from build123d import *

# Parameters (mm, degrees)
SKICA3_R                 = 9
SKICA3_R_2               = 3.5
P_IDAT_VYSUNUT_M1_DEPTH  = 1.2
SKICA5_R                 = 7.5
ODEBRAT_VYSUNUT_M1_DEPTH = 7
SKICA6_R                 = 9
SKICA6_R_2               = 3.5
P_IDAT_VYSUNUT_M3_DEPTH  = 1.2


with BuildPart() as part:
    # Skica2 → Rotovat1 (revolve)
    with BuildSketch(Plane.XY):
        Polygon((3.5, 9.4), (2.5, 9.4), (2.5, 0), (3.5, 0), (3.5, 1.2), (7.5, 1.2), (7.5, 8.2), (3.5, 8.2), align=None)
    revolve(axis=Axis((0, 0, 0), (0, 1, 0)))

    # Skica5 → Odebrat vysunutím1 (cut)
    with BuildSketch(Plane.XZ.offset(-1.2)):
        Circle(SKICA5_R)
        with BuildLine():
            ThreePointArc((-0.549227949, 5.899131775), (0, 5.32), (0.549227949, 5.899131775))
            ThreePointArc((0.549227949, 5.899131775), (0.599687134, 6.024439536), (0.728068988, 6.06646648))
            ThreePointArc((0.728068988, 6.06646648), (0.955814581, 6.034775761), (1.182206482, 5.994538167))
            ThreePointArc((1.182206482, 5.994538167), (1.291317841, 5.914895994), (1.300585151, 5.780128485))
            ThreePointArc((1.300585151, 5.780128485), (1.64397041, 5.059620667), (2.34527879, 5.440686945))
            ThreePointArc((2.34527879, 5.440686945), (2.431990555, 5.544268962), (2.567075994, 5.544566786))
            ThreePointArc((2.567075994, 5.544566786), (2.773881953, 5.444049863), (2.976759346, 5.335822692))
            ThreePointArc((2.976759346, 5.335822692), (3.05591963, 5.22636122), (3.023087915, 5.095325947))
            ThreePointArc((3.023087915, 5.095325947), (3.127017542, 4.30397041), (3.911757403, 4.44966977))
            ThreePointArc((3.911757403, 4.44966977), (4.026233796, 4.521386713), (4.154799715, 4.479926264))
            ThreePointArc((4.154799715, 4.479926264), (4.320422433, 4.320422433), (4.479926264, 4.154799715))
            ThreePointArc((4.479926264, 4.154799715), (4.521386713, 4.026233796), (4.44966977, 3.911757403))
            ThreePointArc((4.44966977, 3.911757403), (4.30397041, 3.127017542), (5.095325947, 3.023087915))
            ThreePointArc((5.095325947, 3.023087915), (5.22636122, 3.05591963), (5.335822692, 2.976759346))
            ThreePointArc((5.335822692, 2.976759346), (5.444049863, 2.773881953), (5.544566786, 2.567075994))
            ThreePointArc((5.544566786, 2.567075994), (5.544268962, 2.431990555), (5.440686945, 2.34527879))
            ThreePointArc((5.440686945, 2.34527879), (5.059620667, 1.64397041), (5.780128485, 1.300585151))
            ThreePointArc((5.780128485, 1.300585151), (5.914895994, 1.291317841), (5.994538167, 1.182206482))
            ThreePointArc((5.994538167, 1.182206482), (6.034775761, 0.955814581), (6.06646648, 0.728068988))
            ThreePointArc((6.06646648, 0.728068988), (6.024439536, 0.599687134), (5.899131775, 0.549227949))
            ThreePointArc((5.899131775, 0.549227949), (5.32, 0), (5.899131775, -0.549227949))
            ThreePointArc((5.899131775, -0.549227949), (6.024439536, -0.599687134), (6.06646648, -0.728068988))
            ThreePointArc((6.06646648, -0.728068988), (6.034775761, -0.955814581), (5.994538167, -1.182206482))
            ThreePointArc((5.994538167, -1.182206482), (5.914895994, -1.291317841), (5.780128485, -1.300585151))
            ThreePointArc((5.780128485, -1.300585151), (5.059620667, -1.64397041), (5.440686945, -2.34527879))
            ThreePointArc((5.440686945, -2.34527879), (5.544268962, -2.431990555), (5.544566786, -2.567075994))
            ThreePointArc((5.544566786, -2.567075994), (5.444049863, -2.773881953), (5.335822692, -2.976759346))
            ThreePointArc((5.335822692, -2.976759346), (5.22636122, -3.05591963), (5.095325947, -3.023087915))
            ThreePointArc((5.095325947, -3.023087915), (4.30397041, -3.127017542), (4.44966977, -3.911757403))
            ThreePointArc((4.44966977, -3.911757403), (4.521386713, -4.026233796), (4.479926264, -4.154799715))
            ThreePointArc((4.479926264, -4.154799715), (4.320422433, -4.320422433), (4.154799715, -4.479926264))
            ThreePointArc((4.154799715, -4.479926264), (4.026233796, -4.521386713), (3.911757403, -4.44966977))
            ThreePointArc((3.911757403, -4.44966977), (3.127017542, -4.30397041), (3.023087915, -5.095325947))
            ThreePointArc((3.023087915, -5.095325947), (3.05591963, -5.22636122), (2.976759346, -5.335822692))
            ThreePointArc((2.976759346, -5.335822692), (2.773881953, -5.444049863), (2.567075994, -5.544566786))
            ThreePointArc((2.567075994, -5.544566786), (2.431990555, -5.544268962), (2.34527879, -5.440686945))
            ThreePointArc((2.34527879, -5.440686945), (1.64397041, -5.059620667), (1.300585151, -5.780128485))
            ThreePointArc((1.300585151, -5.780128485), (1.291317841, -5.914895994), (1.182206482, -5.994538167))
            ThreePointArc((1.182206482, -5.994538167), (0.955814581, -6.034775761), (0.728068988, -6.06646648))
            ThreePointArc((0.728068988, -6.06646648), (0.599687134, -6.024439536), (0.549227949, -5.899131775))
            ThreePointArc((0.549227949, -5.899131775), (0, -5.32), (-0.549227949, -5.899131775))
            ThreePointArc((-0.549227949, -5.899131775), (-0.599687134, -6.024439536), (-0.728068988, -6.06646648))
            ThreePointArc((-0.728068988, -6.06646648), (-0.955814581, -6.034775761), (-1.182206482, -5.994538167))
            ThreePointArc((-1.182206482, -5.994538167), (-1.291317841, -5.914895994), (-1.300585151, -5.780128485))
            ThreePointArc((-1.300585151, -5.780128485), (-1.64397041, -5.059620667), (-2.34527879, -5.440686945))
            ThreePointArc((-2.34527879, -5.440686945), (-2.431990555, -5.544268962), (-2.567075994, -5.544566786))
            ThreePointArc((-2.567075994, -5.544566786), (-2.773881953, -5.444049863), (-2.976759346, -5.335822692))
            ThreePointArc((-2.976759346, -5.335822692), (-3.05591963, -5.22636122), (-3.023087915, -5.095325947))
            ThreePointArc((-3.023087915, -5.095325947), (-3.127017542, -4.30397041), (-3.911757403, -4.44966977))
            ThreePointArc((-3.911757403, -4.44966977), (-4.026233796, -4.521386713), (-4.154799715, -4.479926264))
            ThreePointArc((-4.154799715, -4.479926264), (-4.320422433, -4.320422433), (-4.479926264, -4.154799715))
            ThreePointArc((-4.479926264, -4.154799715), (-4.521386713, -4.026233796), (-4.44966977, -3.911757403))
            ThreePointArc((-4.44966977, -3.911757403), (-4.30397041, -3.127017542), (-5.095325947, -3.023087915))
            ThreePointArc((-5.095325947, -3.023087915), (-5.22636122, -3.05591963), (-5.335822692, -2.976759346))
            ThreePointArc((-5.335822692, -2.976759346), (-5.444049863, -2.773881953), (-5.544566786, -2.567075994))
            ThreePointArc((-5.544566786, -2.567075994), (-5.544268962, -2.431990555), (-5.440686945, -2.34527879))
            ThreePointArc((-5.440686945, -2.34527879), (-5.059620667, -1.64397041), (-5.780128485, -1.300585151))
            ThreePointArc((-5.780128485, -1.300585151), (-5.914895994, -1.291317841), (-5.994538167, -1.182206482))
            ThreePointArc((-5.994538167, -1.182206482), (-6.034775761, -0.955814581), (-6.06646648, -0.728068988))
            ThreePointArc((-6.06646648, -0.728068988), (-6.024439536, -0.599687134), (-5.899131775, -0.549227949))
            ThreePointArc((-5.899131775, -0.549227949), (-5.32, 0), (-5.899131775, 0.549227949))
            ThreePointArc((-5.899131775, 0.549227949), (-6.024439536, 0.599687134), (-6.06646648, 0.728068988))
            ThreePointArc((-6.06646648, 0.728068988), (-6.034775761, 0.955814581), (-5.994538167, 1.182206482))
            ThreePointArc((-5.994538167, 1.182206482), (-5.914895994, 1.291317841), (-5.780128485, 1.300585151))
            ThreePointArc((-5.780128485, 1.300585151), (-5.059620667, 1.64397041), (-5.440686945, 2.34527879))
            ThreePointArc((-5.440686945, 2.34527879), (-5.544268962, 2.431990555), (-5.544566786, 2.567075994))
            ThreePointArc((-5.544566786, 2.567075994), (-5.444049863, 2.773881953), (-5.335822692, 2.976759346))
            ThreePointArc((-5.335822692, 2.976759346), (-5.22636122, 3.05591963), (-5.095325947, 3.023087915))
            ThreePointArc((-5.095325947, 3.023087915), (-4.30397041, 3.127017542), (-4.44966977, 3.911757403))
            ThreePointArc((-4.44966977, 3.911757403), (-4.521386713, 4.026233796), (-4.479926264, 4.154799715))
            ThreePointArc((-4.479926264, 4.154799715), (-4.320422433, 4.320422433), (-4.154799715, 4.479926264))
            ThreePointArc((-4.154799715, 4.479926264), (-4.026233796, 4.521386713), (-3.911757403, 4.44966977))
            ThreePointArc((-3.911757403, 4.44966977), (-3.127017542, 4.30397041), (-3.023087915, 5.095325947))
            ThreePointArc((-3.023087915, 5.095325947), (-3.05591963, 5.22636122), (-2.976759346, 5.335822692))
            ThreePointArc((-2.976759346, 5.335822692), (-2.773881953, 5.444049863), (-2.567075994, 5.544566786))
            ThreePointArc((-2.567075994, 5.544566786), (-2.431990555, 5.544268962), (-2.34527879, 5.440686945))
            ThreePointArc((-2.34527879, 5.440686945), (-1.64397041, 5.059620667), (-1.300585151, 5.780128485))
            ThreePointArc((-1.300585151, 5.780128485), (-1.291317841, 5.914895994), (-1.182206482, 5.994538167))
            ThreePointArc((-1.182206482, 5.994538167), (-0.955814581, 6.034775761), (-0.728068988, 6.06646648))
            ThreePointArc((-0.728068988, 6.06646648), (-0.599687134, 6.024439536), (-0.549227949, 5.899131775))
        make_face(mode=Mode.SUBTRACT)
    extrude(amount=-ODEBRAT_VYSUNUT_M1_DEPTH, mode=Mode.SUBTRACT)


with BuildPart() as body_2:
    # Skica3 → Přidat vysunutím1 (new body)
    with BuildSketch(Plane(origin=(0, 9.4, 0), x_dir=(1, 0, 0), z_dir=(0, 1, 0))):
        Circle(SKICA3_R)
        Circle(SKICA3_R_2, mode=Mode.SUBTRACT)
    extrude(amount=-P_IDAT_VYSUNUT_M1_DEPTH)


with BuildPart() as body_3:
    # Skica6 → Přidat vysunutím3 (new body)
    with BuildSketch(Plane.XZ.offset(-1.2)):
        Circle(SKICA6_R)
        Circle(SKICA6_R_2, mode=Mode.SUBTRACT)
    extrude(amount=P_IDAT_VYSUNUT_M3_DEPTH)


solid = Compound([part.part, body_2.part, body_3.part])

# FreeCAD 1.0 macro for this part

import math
import FreeCAD as App
import Part
import Sketcher
from FreeCAD import Vector
Q = App.Units.Quantity

doc = App.newDocument("Part")
params = doc.addObject("Spreadsheet::Sheet", "Params")
for row, (alias, value) in enumerate([
    ("sketch1_width", "1 mm"),
    ("sketch1_width2", "4 mm"),
    ("sketch1_height", "7 mm"),
    ("sketch1_height2", "9.4 mm"),
    ("revolution_angle", "360 deg"),
    ("sketch2_diameter", "15 mm"),
    ("sketch2_radius", "0.16 mm"),
    ("sketch2_radius2", "0.55 mm"),
    ("sketch2_radius3", "6.11 mm"),
    ("pocket1_length", "7 mm"),
    ("sketch3_diameter", "18 mm"),
    ("sketch3_diameter2", "7 mm"),
    ("pad1_length", "1.2 mm"),
    ("sketch4_diameter", "18 mm"),
    ("sketch4_diameter2", "7 mm"),
    ("pad2_length", "1.2 mm"),
], start=1):
    params.set(f"A{row}", alias)
    params.set(f"B{row}", "=" + value)
    params.setAlias(f"B{row}", alias)

body = doc.addObject("PartDesign::Body", "Body")

sketch1 = doc.addObject("Sketcher::SketchObject", "Sketch")
body.addObject(sketch1)
sketch1.AttachmentSupport = (doc.XY_Plane, [""])
sketch1.MapMode = "FlatFace"
sketch1.addGeometry([
    Part.LineSegment(Vector(3.5, 9.4, 0), Vector(2.5, 9.4, 0)),
    Part.LineSegment(Vector(2.5, 9.4, 0), Vector(2.5, 0, 0)),
    Part.LineSegment(Vector(2.5, 0, 0), Vector(3.5, 0, 0)),
    Part.LineSegment(Vector(3.5, 0, 0), Vector(3.5, 1.2, 0)),
    Part.LineSegment(Vector(3.5, 1.2, 0), Vector(7.5, 1.2, 0)),
    Part.LineSegment(Vector(7.5, 1.2, 0), Vector(7.5, 8.2, 0)),
    Part.LineSegment(Vector(7.5, 8.2, 0), Vector(3.5, 8.2, 0)),
    Part.LineSegment(Vector(3.5, 8.2, 0), Vector(3.5, 9.4, 0)),
], False)
sketch1.addConstraint([
    Sketcher.Constraint("Coincident", 0, 2, 1, 1),
    Sketcher.Constraint("Coincident", 1, 2, 2, 1),
    Sketcher.Constraint("Coincident", 2, 2, 3, 1),
    Sketcher.Constraint("Coincident", 3, 2, 4, 1),
    Sketcher.Constraint("Coincident", 4, 2, 5, 1),
    Sketcher.Constraint("Coincident", 5, 2, 6, 1),
    Sketcher.Constraint("Coincident", 6, 2, 7, 1),
    Sketcher.Constraint("Coincident", 7, 2, 0, 1),
    Sketcher.Constraint("Horizontal", 0),
    Sketcher.Constraint("Vertical", 1),
    Sketcher.Constraint("Horizontal", 2),
    Sketcher.Constraint("Vertical", 3),
    Sketcher.Constraint("Horizontal", 4),
    Sketcher.Constraint("Vertical", 5),
    Sketcher.Constraint("Horizontal", 6),
    Sketcher.Constraint("Vertical", 7),
    Sketcher.Constraint("PointOnObject", 1, 2, -1),
    Sketcher.Constraint("Vertical", 3, 2, 6, 2),
    Sketcher.Constraint("Equal", 3, 7),
    Sketcher.Constraint("DistanceX", 0, 2, 0, 1, Q("1 mm")),
    Sketcher.Constraint("DistanceX", 4, 1, 4, 2, Q("4 mm")),
    Sketcher.Constraint("DistanceY", 5, 1, 5, 2, Q("7 mm")),
    Sketcher.Constraint("DistanceY", 1, 2, 1, 1, Q("9.4 mm")),
    Sketcher.Constraint("DistanceX", -1, 1, 0, 2, Q("2.5 mm")),
])
sketch1.setExpression("Constraints[19]", "Params.sketch1_width")
sketch1.setExpression("Constraints[20]", "Params.sketch1_width2")
sketch1.setExpression("Constraints[21]", "Params.sketch1_height")
sketch1.setExpression("Constraints[22]", "Params.sketch1_height2")
revolution = doc.addObject("PartDesign::Revolution", "Revolution")
body.addObject(revolution)
revolution.Profile = sketch1
revolution.ReferenceAxis = (sketch1, ["V_Axis"])
revolution.setExpression("Angle", "Params.revolution_angle")

sketch2 = doc.addObject("Sketcher::SketchObject", "Sketch001")
body.addObject(sketch2)
sketch2.AttachmentSupport = (doc.XZ_Plane, [""])
sketch2.MapMode = "FlatFace"
sketch2.AttachmentOffset = App.Placement(Vector(0, 0, -1.2), App.Rotation())
sketch2.addGeometry([
    Part.Circle(Vector(0, 0, 0), Vector(0, 0, 1), 7.5),
    Part.ArcOfCircle(Part.Circle(Vector(-0.71, 5.91, 0), Vector(0, 0, 1), 0.16), math.radians(-3), math.radians(97)),
    Part.ArcOfCircle(Part.Circle(Vector(0, 5.87, 0), Vector(0, 0, 1), 0.55), math.radians(177), math.radians(363)),
    Part.ArcOfCircle(Part.Circle(Vector(0.71, 5.91, 0), Vector(0, 0, 1), 0.16), math.radians(83), math.radians(183)),
    Part.ArcOfCircle(Part.Circle(Vector(0, 0, 0), Vector(0, 0, 1), 6.11), math.radians(78.84), math.radians(83.16)),
    Part.ArcOfCircle(Part.Circle(Vector(1.15, 5.84, 0), Vector(0, 0, 1), 0.16), math.radians(-21), math.radians(79)),
    Part.ArcOfCircle(Part.Circle(Vector(1.81, 5.58, 0), Vector(0, 0, 1), 0.55), math.radians(159), math.radians(345)),
    Part.ArcOfCircle(Part.Circle(Vector(2.5, 5.4, 0), Vector(0, 0, 1), 0.16), math.radians(65), math.radians(165)),
    Part.ArcOfCircle(Part.Circle(Vector(0, 0, 0), Vector(0, 0, 1), 6.11), math.radians(60.84), math.radians(65.16)),
    Part.ArcOfCircle(Part.Circle(Vector(2.9, 5.2, 0), Vector(0, 0, 1), 0.16), math.radians(-39), math.radians(61)),
    Part.ArcOfCircle(Part.Circle(Vector(3.45, 4.75, 0), Vector(0, 0, 1), 0.55), math.radians(141), math.radians(327)),
    Part.ArcOfCircle(Part.Circle(Vector(4.05, 4.36, 0), Vector(0, 0, 1), 0.16), math.radians(47), math.radians(147)),
    Part.ArcOfCircle(Part.Circle(Vector(0, 0, 0), Vector(0, 0, 1), 6.11), math.radians(42.84), math.radians(47.16)),
    Part.ArcOfCircle(Part.Circle(Vector(4.36, 4.05, 0), Vector(0, 0, 1), 0.16), math.radians(-57), math.radians(43)),
    Part.ArcOfCircle(Part.Circle(Vector(4.75, 3.45, 0), Vector(0, 0, 1), 0.55), math.radians(123), math.radians(309)),
    Part.ArcOfCircle(Part.Circle(Vector(5.2, 2.9, 0), Vector(0, 0, 1), 0.16), math.radians(29), math.radians(129)),
    Part.ArcOfCircle(Part.Circle(Vector(0, 0, 0), Vector(0, 0, 1), 6.11), math.radians(24.84), math.radians(29.16)),
    Part.ArcOfCircle(Part.Circle(Vector(5.4, 2.5, 0), Vector(0, 0, 1), 0.16), math.radians(-75), math.radians(25)),
    Part.ArcOfCircle(Part.Circle(Vector(5.58, 1.81, 0), Vector(0, 0, 1), 0.55), math.radians(105), math.radians(291)),
    Part.ArcOfCircle(Part.Circle(Vector(5.84, 1.15, 0), Vector(0, 0, 1), 0.16), math.radians(11), math.radians(111)),
    Part.ArcOfCircle(Part.Circle(Vector(0, 0, 0), Vector(0, 0, 1), 6.11), math.radians(6.84), math.radians(11.16)),
    Part.ArcOfCircle(Part.Circle(Vector(5.91, 0.71, 0), Vector(0, 0, 1), 0.16), math.radians(-93), math.radians(7)),
    Part.ArcOfCircle(Part.Circle(Vector(5.87, 0, 0), Vector(0, 0, 1), 0.55), math.radians(87), math.radians(273)),
    Part.ArcOfCircle(Part.Circle(Vector(5.91, -0.71, 0), Vector(0, 0, 1), 0.16), math.radians(-7), math.radians(93)),
    Part.ArcOfCircle(Part.Circle(Vector(0, 0, 0), Vector(0, 0, 1), 6.11), math.radians(-11.16), math.radians(-6.84)),
    Part.ArcOfCircle(Part.Circle(Vector(5.84, -1.15, 0), Vector(0, 0, 1), 0.16), math.radians(-111), math.radians(-11)),
    Part.ArcOfCircle(Part.Circle(Vector(5.58, -1.81, 0), Vector(0, 0, 1), 0.55), math.radians(69), math.radians(255)),
    Part.ArcOfCircle(Part.Circle(Vector(5.4, -2.5, 0), Vector(0, 0, 1), 0.16), math.radians(-25), math.radians(75)),
    Part.ArcOfCircle(Part.Circle(Vector(0, 0, 0), Vector(0, 0, 1), 6.11), math.radians(-29.16), math.radians(-24.84)),
    Part.ArcOfCircle(Part.Circle(Vector(5.2, -2.9, 0), Vector(0, 0, 1), 0.16), math.radians(-129), math.radians(-29)),
    Part.ArcOfCircle(Part.Circle(Vector(4.75, -3.45, 0), Vector(0, 0, 1), 0.55), math.radians(51), math.radians(237)),
    Part.ArcOfCircle(Part.Circle(Vector(4.36, -4.05, 0), Vector(0, 0, 1), 0.16), math.radians(-43), math.radians(57)),
    Part.ArcOfCircle(Part.Circle(Vector(0, 0, 0), Vector(0, 0, 1), 6.11), math.radians(-47.16), math.radians(-42.84)),
    Part.ArcOfCircle(Part.Circle(Vector(4.05, -4.36, 0), Vector(0, 0, 1), 0.16), math.radians(-147), math.radians(-47)),
    Part.ArcOfCircle(Part.Circle(Vector(3.45, -4.75, 0), Vector(0, 0, 1), 0.55), math.radians(33), math.radians(219)),
    Part.ArcOfCircle(Part.Circle(Vector(2.9, -5.2, 0), Vector(0, 0, 1), 0.16), math.radians(-61), math.radians(39)),
    Part.ArcOfCircle(Part.Circle(Vector(0, 0, 0), Vector(0, 0, 1), 6.11), math.radians(-65.16), math.radians(-60.84)),
    Part.ArcOfCircle(Part.Circle(Vector(2.5, -5.4, 0), Vector(0, 0, 1), 0.16), math.radians(-165), math.radians(-65)),
    Part.ArcOfCircle(Part.Circle(Vector(1.81, -5.58, 0), Vector(0, 0, 1), 0.55), math.radians(15), math.radians(201)),
    Part.ArcOfCircle(Part.Circle(Vector(1.15, -5.84, 0), Vector(0, 0, 1), 0.16), math.radians(-79), math.radians(21)),
    Part.ArcOfCircle(Part.Circle(Vector(0, 0, 0), Vector(0, 0, 1), 6.11), math.radians(-83.16), math.radians(-78.84)),
    Part.ArcOfCircle(Part.Circle(Vector(0.71, -5.91, 0), Vector(0, 0, 1), 0.16), math.radians(177), math.radians(277)),
    Part.ArcOfCircle(Part.Circle(Vector(0, -5.87, 0), Vector(0, 0, 1), 0.55), math.radians(-3), math.radians(183)),
    Part.ArcOfCircle(Part.Circle(Vector(-0.71, -5.91, 0), Vector(0, 0, 1), 0.16), math.radians(-97), math.radians(3)),
    Part.ArcOfCircle(Part.Circle(Vector(0, 0, 0), Vector(0, 0, 1), 6.11), math.radians(-101.16), math.radians(-96.84)),
    Part.ArcOfCircle(Part.Circle(Vector(-1.15, -5.84, 0), Vector(0, 0, 1), 0.16), math.radians(159), math.radians(259)),
    Part.ArcOfCircle(Part.Circle(Vector(-1.81, -5.58, 0), Vector(0, 0, 1), 0.55), math.radians(-21), math.radians(165)),
    Part.ArcOfCircle(Part.Circle(Vector(-2.5, -5.4, 0), Vector(0, 0, 1), 0.16), math.radians(-115), math.radians(-15)),
    Part.ArcOfCircle(Part.Circle(Vector(0, 0, 0), Vector(0, 0, 1), 6.11), math.radians(-119.16), math.radians(-114.84)),
    Part.ArcOfCircle(Part.Circle(Vector(-2.9, -5.2, 0), Vector(0, 0, 1), 0.16), math.radians(141), math.radians(241)),
    Part.ArcOfCircle(Part.Circle(Vector(-3.45, -4.75, 0), Vector(0, 0, 1), 0.55), math.radians(-39), math.radians(147)),
    Part.ArcOfCircle(Part.Circle(Vector(-4.05, -4.36, 0), Vector(0, 0, 1), 0.16), math.radians(-133), math.radians(-33)),
    Part.ArcOfCircle(Part.Circle(Vector(0, 0, 0), Vector(0, 0, 1), 6.11), math.radians(-137.16), math.radians(-132.84)),
    Part.ArcOfCircle(Part.Circle(Vector(-4.36, -4.05, 0), Vector(0, 0, 1), 0.16), math.radians(123), math.radians(223)),
    Part.ArcOfCircle(Part.Circle(Vector(-4.75, -3.45, 0), Vector(0, 0, 1), 0.55), math.radians(-57), math.radians(129)),
    Part.ArcOfCircle(Part.Circle(Vector(-5.2, -2.9, 0), Vector(0, 0, 1), 0.16), math.radians(-151), math.radians(-51)),
    Part.ArcOfCircle(Part.Circle(Vector(0, 0, 0), Vector(0, 0, 1), 6.11), math.radians(-155.16), math.radians(-150.84)),
    Part.ArcOfCircle(Part.Circle(Vector(-5.4, -2.5, 0), Vector(0, 0, 1), 0.16), math.radians(105), math.radians(205)),
    Part.ArcOfCircle(Part.Circle(Vector(-5.58, -1.81, 0), Vector(0, 0, 1), 0.55), math.radians(-75), math.radians(111)),
    Part.ArcOfCircle(Part.Circle(Vector(-5.84, -1.15, 0), Vector(0, 0, 1), 0.16), math.radians(-169), math.radians(-69)),
    Part.ArcOfCircle(Part.Circle(Vector(0, 0, 0), Vector(0, 0, 1), 6.11), math.radians(-173.16), math.radians(-168.84)),
    Part.ArcOfCircle(Part.Circle(Vector(-5.91, -0.71, 0), Vector(0, 0, 1), 0.16), math.radians(87), math.radians(187)),
    Part.ArcOfCircle(Part.Circle(Vector(-5.87, 0, 0), Vector(0, 0, 1), 0.55), math.radians(-93), math.radians(93)),
    Part.ArcOfCircle(Part.Circle(Vector(-5.91, 0.71, 0), Vector(0, 0, 1), 0.16), math.radians(173), math.radians(273)),
    Part.ArcOfCircle(Part.Circle(Vector(0, 0, 0), Vector(0, 0, 1), 6.11), math.radians(168.84), math.radians(173.16)),
    Part.ArcOfCircle(Part.Circle(Vector(-5.84, 1.15, 0), Vector(0, 0, 1), 0.16), math.radians(69), math.radians(169)),
    Part.ArcOfCircle(Part.Circle(Vector(-5.58, 1.81, 0), Vector(0, 0, 1), 0.55), math.radians(-111), math.radians(75)),
    Part.ArcOfCircle(Part.Circle(Vector(-5.4, 2.5, 0), Vector(0, 0, 1), 0.16), math.radians(155), math.radians(255)),
    Part.ArcOfCircle(Part.Circle(Vector(0, 0, 0), Vector(0, 0, 1), 6.11), math.radians(150.84), math.radians(155.16)),
    Part.ArcOfCircle(Part.Circle(Vector(-5.2, 2.9, 0), Vector(0, 0, 1), 0.16), math.radians(51), math.radians(151)),
    Part.ArcOfCircle(Part.Circle(Vector(-4.75, 3.45, 0), Vector(0, 0, 1), 0.55), math.radians(-129), math.radians(57)),
    Part.ArcOfCircle(Part.Circle(Vector(-4.36, 4.05, 0), Vector(0, 0, 1), 0.16), math.radians(137), math.radians(237)),
    Part.ArcOfCircle(Part.Circle(Vector(0, 0, 0), Vector(0, 0, 1), 6.11), math.radians(132.84), math.radians(137.16)),
    Part.ArcOfCircle(Part.Circle(Vector(-4.05, 4.36, 0), Vector(0, 0, 1), 0.16), math.radians(33), math.radians(133)),
    Part.ArcOfCircle(Part.Circle(Vector(-3.45, 4.75, 0), Vector(0, 0, 1), 0.55), math.radians(-147), math.radians(39)),
    Part.ArcOfCircle(Part.Circle(Vector(-2.9, 5.2, 0), Vector(0, 0, 1), 0.16), math.radians(119), math.radians(219)),
    Part.ArcOfCircle(Part.Circle(Vector(0, 0, 0), Vector(0, 0, 1), 6.11), math.radians(114.84), math.radians(119.16)),
    Part.ArcOfCircle(Part.Circle(Vector(-2.5, 5.4, 0), Vector(0, 0, 1), 0.16), math.radians(15), math.radians(115)),
    Part.ArcOfCircle(Part.Circle(Vector(-1.81, 5.58, 0), Vector(0, 0, 1), 0.55), math.radians(-165), math.radians(21)),
    Part.ArcOfCircle(Part.Circle(Vector(-1.15, 5.84, 0), Vector(0, 0, 1), 0.16), math.radians(101), math.radians(201)),
    Part.ArcOfCircle(Part.Circle(Vector(0, 0, 0), Vector(0, 0, 1), 6.11), math.radians(96.84), math.radians(101.16)),
], False)
sketch2.addConstraint([
    Sketcher.Constraint("Tangent", 1, 1, 2, 1),
    Sketcher.Constraint("Tangent", 2, 2, 3, 2),
    Sketcher.Constraint("Tangent", 3, 1, 4, 2),
    Sketcher.Constraint("Tangent", 4, 1, 5, 2),
    Sketcher.Constraint("Tangent", 5, 1, 6, 1),
    Sketcher.Constraint("Tangent", 6, 2, 7, 2),
    Sketcher.Constraint("Tangent", 7, 1, 8, 2),
    Sketcher.Constraint("Tangent", 8, 1, 9, 2),
    Sketcher.Constraint("Tangent", 9, 1, 10, 1),
    Sketcher.Constraint("Tangent", 10, 2, 11, 2),
    Sketcher.Constraint("Tangent", 11, 1, 12, 2),
    Sketcher.Constraint("Tangent", 12, 1, 13, 2),
    Sketcher.Constraint("Tangent", 13, 1, 14, 1),
    Sketcher.Constraint("Tangent", 14, 2, 15, 2),
    Sketcher.Constraint("Tangent", 15, 1, 16, 2),
    Sketcher.Constraint("Tangent", 16, 1, 17, 2),
    Sketcher.Constraint("Tangent", 17, 1, 18, 1),
    Sketcher.Constraint("Tangent", 18, 2, 19, 2),
    Sketcher.Constraint("Tangent", 19, 1, 20, 2),
    Sketcher.Constraint("Tangent", 20, 1, 21, 2),
    Sketcher.Constraint("Tangent", 21, 1, 22, 1),
    Sketcher.Constraint("Tangent", 22, 2, 23, 2),
    Sketcher.Constraint("Tangent", 23, 1, 24, 2),
    Sketcher.Constraint("Tangent", 24, 1, 25, 2),
    Sketcher.Constraint("Tangent", 25, 1, 26, 1),
    Sketcher.Constraint("Tangent", 26, 2, 27, 2),
    Sketcher.Constraint("Tangent", 27, 1, 28, 2),
    Sketcher.Constraint("Tangent", 28, 1, 29, 2),
    Sketcher.Constraint("Tangent", 29, 1, 30, 1),
    Sketcher.Constraint("Tangent", 30, 2, 31, 2),
    Sketcher.Constraint("Tangent", 31, 1, 32, 2),
    Sketcher.Constraint("Tangent", 32, 1, 33, 2),
    Sketcher.Constraint("Tangent", 33, 1, 34, 1),
    Sketcher.Constraint("Tangent", 34, 2, 35, 2),
    Sketcher.Constraint("Tangent", 35, 1, 36, 2),
    Sketcher.Constraint("Tangent", 36, 1, 37, 2),
    Sketcher.Constraint("Tangent", 37, 1, 38, 1),
    Sketcher.Constraint("Tangent", 38, 2, 39, 2),
    Sketcher.Constraint("Tangent", 39, 1, 40, 2),
    Sketcher.Constraint("Tangent", 40, 1, 41, 2),
    Sketcher.Constraint("Tangent", 41, 1, 42, 1),
    Sketcher.Constraint("Tangent", 42, 2, 43, 2),
    Sketcher.Constraint("Tangent", 43, 1, 44, 2),
    Sketcher.Constraint("Tangent", 44, 1, 45, 2),
    Sketcher.Constraint("Tangent", 45, 1, 46, 1),
    Sketcher.Constraint("Tangent", 46, 2, 47, 2),
    Sketcher.Constraint("Tangent", 47, 1, 48, 2),
    Sketcher.Constraint("Tangent", 48, 1, 49, 2),
    Sketcher.Constraint("Tangent", 49, 1, 50, 1),
    Sketcher.Constraint("Tangent", 50, 2, 51, 2),
    Sketcher.Constraint("Tangent", 51, 1, 52, 2),
    Sketcher.Constraint("Tangent", 52, 1, 53, 2),
    Sketcher.Constraint("Tangent", 53, 1, 54, 1),
    Sketcher.Constraint("Tangent", 54, 2, 55, 2),
    Sketcher.Constraint("Tangent", 55, 1, 56, 2),
    Sketcher.Constraint("Tangent", 56, 1, 57, 2),
    Sketcher.Constraint("Tangent", 57, 1, 58, 1),
    Sketcher.Constraint("Tangent", 58, 2, 59, 2),
    Sketcher.Constraint("Tangent", 59, 1, 60, 2),
    Sketcher.Constraint("Tangent", 60, 1, 61, 2),
    Sketcher.Constraint("Tangent", 61, 1, 62, 1),
    Sketcher.Constraint("Tangent", 62, 2, 63, 2),
    Sketcher.Constraint("Tangent", 63, 1, 64, 2),
    Sketcher.Constraint("Tangent", 64, 1, 65, 2),
    Sketcher.Constraint("Tangent", 65, 1, 66, 1),
    Sketcher.Constraint("Tangent", 66, 2, 67, 2),
    Sketcher.Constraint("Tangent", 67, 1, 68, 2),
    Sketcher.Constraint("Tangent", 68, 1, 69, 2),
    Sketcher.Constraint("Tangent", 69, 1, 70, 1),
    Sketcher.Constraint("Tangent", 70, 2, 71, 2),
    Sketcher.Constraint("Tangent", 71, 1, 72, 2),
    Sketcher.Constraint("Tangent", 72, 1, 73, 2),
    Sketcher.Constraint("Tangent", 73, 1, 74, 1),
    Sketcher.Constraint("Tangent", 74, 2, 75, 2),
    Sketcher.Constraint("Tangent", 75, 1, 76, 2),
    Sketcher.Constraint("Tangent", 76, 1, 77, 2),
    Sketcher.Constraint("Tangent", 77, 1, 78, 1),
    Sketcher.Constraint("Tangent", 78, 2, 79, 2),
    Sketcher.Constraint("Tangent", 79, 1, 80, 2),
    Sketcher.Constraint("Tangent", 80, 1, 1, 2),
    Sketcher.Constraint("Coincident", 0, 3, -1, 1),
    Sketcher.Constraint("Coincident", 4, 3, -1, 1),
    Sketcher.Constraint("Coincident", 8, 3, -1, 1),
    Sketcher.Constraint("Coincident", 12, 3, -1, 1),
    Sketcher.Constraint("Coincident", 16, 3, -1, 1),
    Sketcher.Constraint("Coincident", 20, 3, -1, 1),
    Sketcher.Constraint("Coincident", 24, 3, -1, 1),
    Sketcher.Constraint("Coincident", 28, 3, -1, 1),
    Sketcher.Constraint("Coincident", 32, 3, -1, 1),
    Sketcher.Constraint("Coincident", 36, 3, -1, 1),
    Sketcher.Constraint("Coincident", 40, 3, -1, 1),
    Sketcher.Constraint("Coincident", 44, 3, -1, 1),
    Sketcher.Constraint("Coincident", 48, 3, -1, 1),
    Sketcher.Constraint("Coincident", 52, 3, -1, 1),
    Sketcher.Constraint("Coincident", 56, 3, -1, 1),
    Sketcher.Constraint("Coincident", 60, 3, -1, 1),
    Sketcher.Constraint("Coincident", 64, 3, -1, 1),
    Sketcher.Constraint("Coincident", 68, 3, -1, 1),
    Sketcher.Constraint("Coincident", 72, 3, -1, 1),
    Sketcher.Constraint("Coincident", 76, 3, -1, 1),
    Sketcher.Constraint("Coincident", 80, 3, -1, 1),
    Sketcher.Constraint("Equal", 1, 3),
    Sketcher.Constraint("Equal", 3, 5),
    Sketcher.Constraint("Equal", 2, 6),
    Sketcher.Constraint("Equal", 5, 7),
    Sketcher.Constraint("Equal", 4, 8),
    Sketcher.Constraint("Equal", 7, 9),
    Sketcher.Constraint("Equal", 6, 10),
    Sketcher.Constraint("Equal", 9, 11),
    Sketcher.Constraint("Equal", 8, 12),
    Sketcher.Constraint("Equal", 11, 13),
    Sketcher.Constraint("Equal", 10, 14),
    Sketcher.Constraint("Equal", 13, 15),
    Sketcher.Constraint("Equal", 12, 16),
    Sketcher.Constraint("Equal", 15, 17),
    Sketcher.Constraint("Equal", 14, 18),
    Sketcher.Constraint("Equal", 17, 19),
    Sketcher.Constraint("Equal", 16, 20),
    Sketcher.Constraint("Equal", 19, 21),
    Sketcher.Constraint("Equal", 18, 22),
    Sketcher.Constraint("Equal", 21, 23),
    Sketcher.Constraint("Equal", 20, 24),
    Sketcher.Constraint("Equal", 23, 25),
    Sketcher.Constraint("Equal", 22, 26),
    Sketcher.Constraint("Equal", 25, 27),
    Sketcher.Constraint("Equal", 24, 28),
    Sketcher.Constraint("Equal", 27, 29),
    Sketcher.Constraint("Equal", 26, 30),
    Sketcher.Constraint("Equal", 29, 31),
    Sketcher.Constraint("Equal", 28, 32),
    Sketcher.Constraint("Equal", 31, 33),
    Sketcher.Constraint("Equal", 30, 34),
    Sketcher.Constraint("Equal", 33, 35),
    Sketcher.Constraint("Equal", 32, 36),
    Sketcher.Constraint("Equal", 35, 37),
    Sketcher.Constraint("Equal", 34, 38),
    Sketcher.Constraint("Equal", 37, 39),
    Sketcher.Constraint("Equal", 36, 40),
    Sketcher.Constraint("Equal", 39, 41),
    Sketcher.Constraint("Equal", 38, 42),
    Sketcher.Constraint("Equal", 41, 43),
    Sketcher.Constraint("Equal", 40, 44),
    Sketcher.Constraint("Equal", 43, 45),
    Sketcher.Constraint("Equal", 42, 46),
    Sketcher.Constraint("Equal", 45, 47),
    Sketcher.Constraint("Equal", 44, 48),
    Sketcher.Constraint("Equal", 47, 49),
    Sketcher.Constraint("Equal", 46, 50),
    Sketcher.Constraint("Equal", 49, 51),
    Sketcher.Constraint("Equal", 48, 52),
    Sketcher.Constraint("Equal", 51, 53),
    Sketcher.Constraint("Equal", 50, 54),
    Sketcher.Constraint("Equal", 53, 55),
    Sketcher.Constraint("Equal", 52, 56),
    Sketcher.Constraint("Equal", 55, 57),
    Sketcher.Constraint("Equal", 54, 58),
    Sketcher.Constraint("Equal", 57, 59),
    Sketcher.Constraint("Equal", 56, 60),
    Sketcher.Constraint("Equal", 59, 61),
    Sketcher.Constraint("Equal", 58, 62),
    Sketcher.Constraint("Equal", 61, 63),
    Sketcher.Constraint("Equal", 60, 64),
    Sketcher.Constraint("Equal", 63, 65),
    Sketcher.Constraint("Equal", 62, 66),
    Sketcher.Constraint("Equal", 65, 67),
    Sketcher.Constraint("Equal", 64, 68),
    Sketcher.Constraint("Equal", 67, 69),
    Sketcher.Constraint("Equal", 66, 70),
    Sketcher.Constraint("Equal", 69, 71),
    Sketcher.Constraint("Equal", 68, 72),
    Sketcher.Constraint("Equal", 71, 73),
    Sketcher.Constraint("Equal", 70, 74),
    Sketcher.Constraint("Equal", 73, 75),
    Sketcher.Constraint("Equal", 72, 76),
    Sketcher.Constraint("Equal", 75, 77),
    Sketcher.Constraint("Equal", 74, 78),
    Sketcher.Constraint("Equal", 77, 79),
    Sketcher.Constraint("Equal", 76, 80),
    Sketcher.Constraint("Symmetric", 2, 3, 42, 3, -1, 1),
    Sketcher.Constraint("Symmetric", 6, 3, 46, 3, -1, 1),
    Sketcher.Constraint("Symmetric", 10, 3, 50, 3, -1, 1),
    Sketcher.Constraint("Symmetric", 14, 3, 54, 3, -1, 1),
    Sketcher.Constraint("Symmetric", 18, 3, 58, 3, -1, 1),
    Sketcher.Constraint("Symmetric", 22, 3, 62, 3, -1, 1),
    Sketcher.Constraint("Symmetric", 26, 3, 66, 3, -1, 1),
    Sketcher.Constraint("Symmetric", 30, 3, 70, 3, -1, 1),
    Sketcher.Constraint("Symmetric", 34, 3, 74, 3, -1, 1),
    Sketcher.Constraint("Symmetric", 38, 3, 78, 3, -1, 1),
    Sketcher.Constraint("Symmetric", 38, 3, 46, 3, -2),
    Sketcher.Constraint("Symmetric", 34, 3, 50, 3, -2),
    Sketcher.Constraint("Symmetric", 30, 3, 54, 3, -2),
    Sketcher.Constraint("Symmetric", 26, 3, 58, 3, -2),
    Sketcher.Constraint("PointOnObject", 2, 3, -2),
    Sketcher.Constraint("PointOnObject", 22, 3, -1),
    Sketcher.Constraint("Diameter", 0, Q("15 mm")),
    Sketcher.Constraint("Radius", 1, Q("0.16 mm")),
    Sketcher.Constraint("Radius", 2, Q("0.55 mm")),
    Sketcher.Constraint("Radius", 4, Q("6.11 mm")),
    Sketcher.Constraint("DistanceY", -1, 1, 2, 3, Q("5.87 mm")),
    Sketcher.Constraint("DistanceX", -1, 1, 22, 3, Q("5.87 mm")),
    Sketcher.Constraint("DistanceX", -1, 1, 11, 3, Q("4.046 mm")),
    Sketcher.Constraint("DistanceY", -1, 1, 13, 3, Q("4.046 mm")),
    Sketcher.Constraint("DistanceY", -1, 1, 6, 3, Q("5.582702 mm")),
    Sketcher.Constraint("DistanceX", -1, 1, 10, 3, Q("3.450299 mm")),
    Sketcher.Constraint("DistanceY", -1, 1, 14, 3, Q("3.450299 mm")),
    Sketcher.Constraint("DistanceX", -1, 1, 18, 3, Q("5.582702 mm")),
    Sketcher.Constraint("DistanceX", -1, 1, 5, 3, Q("1.151249 mm")),
    Sketcher.Constraint("DistanceY", -1, 1, 18, 3, Q("1.81393 mm")),
])
sketch2.setExpression("Constraints[194]", "Params.sketch2_diameter")
sketch2.setExpression("Constraints[195]", "Params.sketch2_radius")
sketch2.setExpression("Constraints[196]", "Params.sketch2_radius2")
sketch2.setExpression("Constraints[197]", "Params.sketch2_radius3")
pocket1 = doc.addObject("PartDesign::Pocket", "Pocket")
body.addObject(pocket1)
pocket1.Profile = sketch2
pocket1.setExpression("Length", "Params.pocket1_length")
body2 = doc.addObject("PartDesign::Body", "Body001")

sketch3 = doc.addObject("Sketcher::SketchObject", "Sketch002")
body2.addObject(sketch3)
sketch3.AttachmentSupport = (doc.getObject("XZ_Plane001"), [""])
sketch3.MapMode = "FlatFace"
sketch3.AttachmentOffset = App.Placement(Vector(0, 0, -9.4), App.Rotation())
sketch3.addGeometry([
    Part.Circle(Vector(0, 0, 0), Vector(0, 0, 1), 9),
    Part.Circle(Vector(0, 0, 0), Vector(0, 0, 1), 3.5),
], False)
sketch3.addConstraint([
    Sketcher.Constraint("Coincident", 0, 3, -1, 1),
    Sketcher.Constraint("Coincident", 1, 3, -1, 1),
    Sketcher.Constraint("Diameter", 0, Q("18 mm")),
    Sketcher.Constraint("Diameter", 1, Q("7 mm")),
])
sketch3.setExpression("Constraints[2]", "Params.sketch3_diameter")
sketch3.setExpression("Constraints[3]", "Params.sketch3_diameter2")
pad1 = doc.addObject("PartDesign::Pad", "Pad")
body2.addObject(pad1)
pad1.Profile = sketch3
pad1.setExpression("Length", "Params.pad1_length")
body3 = doc.addObject("PartDesign::Body", "Body002")

sketch4 = doc.addObject("Sketcher::SketchObject", "Sketch003")
body3.addObject(sketch4)
sketch4.AttachmentSupport = (doc.getObject("XZ_Plane002"), [""])
sketch4.MapMode = "FlatFace"
sketch4.AttachmentOffset = App.Placement(Vector(0, 0, -1.2), App.Rotation())
sketch4.addGeometry([
    Part.Circle(Vector(0, 0, 0), Vector(0, 0, 1), 9),
    Part.Circle(Vector(0, 0, 0), Vector(0, 0, 1), 3.5),
], False)
sketch4.addConstraint([
    Sketcher.Constraint("Coincident", 0, 3, -1, 1),
    Sketcher.Constraint("Coincident", 1, 3, -1, 1),
    Sketcher.Constraint("Diameter", 0, Q("18 mm")),
    Sketcher.Constraint("Diameter", 1, Q("7 mm")),
])
sketch4.setExpression("Constraints[2]", "Params.sketch4_diameter")
sketch4.setExpression("Constraints[3]", "Params.sketch4_diameter2")
pad2 = doc.addObject("PartDesign::Pad", "Pad001")
body3.addObject(pad2)
pad2.Profile = sketch4
pad2.setExpression("Length", "Params.pad2_length")

doc.recompute()
